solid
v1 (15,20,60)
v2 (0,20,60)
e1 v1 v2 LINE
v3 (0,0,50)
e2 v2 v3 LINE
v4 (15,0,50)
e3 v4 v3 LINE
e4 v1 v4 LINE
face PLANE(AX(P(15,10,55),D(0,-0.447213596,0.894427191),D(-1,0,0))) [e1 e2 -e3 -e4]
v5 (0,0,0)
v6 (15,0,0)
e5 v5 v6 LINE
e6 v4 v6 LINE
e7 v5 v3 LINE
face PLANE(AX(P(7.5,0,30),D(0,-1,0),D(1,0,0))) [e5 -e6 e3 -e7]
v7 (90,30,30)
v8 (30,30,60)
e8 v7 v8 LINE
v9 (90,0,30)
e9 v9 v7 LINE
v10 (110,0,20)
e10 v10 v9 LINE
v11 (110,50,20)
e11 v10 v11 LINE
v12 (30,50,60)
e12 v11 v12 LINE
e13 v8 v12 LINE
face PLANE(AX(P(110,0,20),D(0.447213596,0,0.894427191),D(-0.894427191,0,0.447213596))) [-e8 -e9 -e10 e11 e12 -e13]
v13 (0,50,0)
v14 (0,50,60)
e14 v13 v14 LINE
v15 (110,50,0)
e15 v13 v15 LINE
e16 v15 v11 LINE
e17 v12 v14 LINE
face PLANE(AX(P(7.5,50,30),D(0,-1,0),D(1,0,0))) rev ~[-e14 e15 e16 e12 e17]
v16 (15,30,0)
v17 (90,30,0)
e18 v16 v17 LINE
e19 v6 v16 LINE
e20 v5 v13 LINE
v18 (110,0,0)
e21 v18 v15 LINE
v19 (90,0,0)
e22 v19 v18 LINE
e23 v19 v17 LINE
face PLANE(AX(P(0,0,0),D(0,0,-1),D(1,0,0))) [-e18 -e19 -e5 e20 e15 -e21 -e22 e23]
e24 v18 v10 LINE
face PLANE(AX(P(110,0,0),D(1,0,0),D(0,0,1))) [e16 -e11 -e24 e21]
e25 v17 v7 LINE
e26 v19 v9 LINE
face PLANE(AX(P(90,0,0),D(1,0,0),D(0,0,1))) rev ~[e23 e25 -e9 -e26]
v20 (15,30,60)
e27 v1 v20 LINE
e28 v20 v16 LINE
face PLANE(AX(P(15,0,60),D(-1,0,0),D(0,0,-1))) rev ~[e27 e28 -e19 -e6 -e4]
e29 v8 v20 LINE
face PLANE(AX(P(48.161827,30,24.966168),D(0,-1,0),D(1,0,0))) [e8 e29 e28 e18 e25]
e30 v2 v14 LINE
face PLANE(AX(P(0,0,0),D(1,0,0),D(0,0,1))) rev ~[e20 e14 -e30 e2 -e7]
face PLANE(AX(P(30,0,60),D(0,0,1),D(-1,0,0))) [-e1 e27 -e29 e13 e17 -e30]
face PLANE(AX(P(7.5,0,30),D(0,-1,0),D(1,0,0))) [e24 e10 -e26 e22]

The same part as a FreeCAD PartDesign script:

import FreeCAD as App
import Part
import Sketcher
from FreeCAD import Vector
Q = App.Units.Quantity


def edges_at(feature, points):
    """Names of the edges that pass closest to the given points."""
    edges = feature.Shape.Edges
    near = lambda p: min(range(len(edges)), key=lambda i: edges[i].distToShape(Part.Vertex(*p))[0])
    return sorted({f"Edge{near(p) + 1}" for p in points})


def add_polygon(sketch, points):
    """Adds a closed chain of lines whose ends are joined by coincident constraints."""
    first, n = sketch.GeometryCount, len(points)
    for a, b in zip(points, points[1:] + points[:1]):
        sketch.addGeometry(Part.LineSegment(App.Vector(*a, 0), App.Vector(*b, 0)), False)
    for i in range(n):
        sketch.addConstraint(Sketcher.Constraint("Coincident", first + i, 2, first + (i + 1) % n, 1))

doc = App.newDocument("Part")
body = doc.addObject("PartDesign::Body", "Body")

# Sketch on XZ plane
sketch1 = body.newObject("Sketcher::SketchObject", "Sketch")
sketch1.AttachmentSupport = (doc.getObject("XZ_Plane"), [""])
sketch1.MapMode = "FlatFace"
add_polygon(sketch1, [(0, 60), (0, 0), (110, 0), (110, 20), (30, 60)])  # lines 0-4
sketch1.addConstraint([
    Sketcher.Constraint("Vertical", 0),
    Sketcher.Constraint("Horizontal", 1),
    Sketcher.Constraint("Vertical", 2),
    Sketcher.Constraint("Horizontal", 4),
    Sketcher.Constraint("Coincident", 0, 2, -1, 1),
    Sketcher.Constraint("DistanceX", 1, 1, 1, 2, Q("110 mm")),
    Sketcher.Constraint("DistanceX", 4, 2, 4, 1, Q("30 mm")),
    Sketcher.Constraint("DistanceY", 0, 2, 0, 1, Q("60 mm")),
    Sketcher.Constraint("DistanceY", 2, 1, 2, 2, Q("20 mm")),
])
pad1 = body.newObject("PartDesign::Pad", "Pad")
pad1.Profile = sketch1
pad1.Length = 50
pad1.Reversed = True

# Sketch on XZ plane
sketch2 = body.newObject("Sketcher::SketchObject", "Sketch001")
sketch2.AttachmentSupport = (doc.getObject("XZ_Plane"), [""])
sketch2.MapMode = "FlatFace"
add_polygon(sketch2, [(15, 60), (15, 0), (90, 0), (90, 30), (30, 60)])  # lines 0-4
sketch2.addConstraint([
    Sketcher.Constraint("Vertical", 0),
    Sketcher.Constraint("Horizontal", 1),
    Sketcher.Constraint("Vertical", 2),
    Sketcher.Constraint("Horizontal", 4),
    Sketcher.Constraint("PointOnObject", 0, 2, -1),
    Sketcher.Constraint("DistanceX", 1, 1, 1, 2, Q("75 mm")),
    Sketcher.Constraint("DistanceX", 4, 2, 4, 1, Q("15 mm")),
    Sketcher.Constraint("DistanceY", 0, 2, 0, 1, Q("60 mm")),
    Sketcher.Constraint("DistanceY", 2, 1, 2, 2, Q("30 mm")),
    Sketcher.Constraint("DistanceX", -1, 1, 0, 2, Q("15 mm")),
])
pocket1 = body.newObject("PartDesign::Pocket", "Pocket")
pocket1.Profile = sketch2
pocket1.Length = 30
doc.recompute()

chamfer = body.newObject("PartDesign::Chamfer", "Chamfer")
chamfer.Base = (pocket1, edges_at(pocket1, [(7.5, 0, 60)]))
chamfer.ChamferType = "Two distances"
chamfer.Size = 20
chamfer.Size2 = 10

doc.recompute()
